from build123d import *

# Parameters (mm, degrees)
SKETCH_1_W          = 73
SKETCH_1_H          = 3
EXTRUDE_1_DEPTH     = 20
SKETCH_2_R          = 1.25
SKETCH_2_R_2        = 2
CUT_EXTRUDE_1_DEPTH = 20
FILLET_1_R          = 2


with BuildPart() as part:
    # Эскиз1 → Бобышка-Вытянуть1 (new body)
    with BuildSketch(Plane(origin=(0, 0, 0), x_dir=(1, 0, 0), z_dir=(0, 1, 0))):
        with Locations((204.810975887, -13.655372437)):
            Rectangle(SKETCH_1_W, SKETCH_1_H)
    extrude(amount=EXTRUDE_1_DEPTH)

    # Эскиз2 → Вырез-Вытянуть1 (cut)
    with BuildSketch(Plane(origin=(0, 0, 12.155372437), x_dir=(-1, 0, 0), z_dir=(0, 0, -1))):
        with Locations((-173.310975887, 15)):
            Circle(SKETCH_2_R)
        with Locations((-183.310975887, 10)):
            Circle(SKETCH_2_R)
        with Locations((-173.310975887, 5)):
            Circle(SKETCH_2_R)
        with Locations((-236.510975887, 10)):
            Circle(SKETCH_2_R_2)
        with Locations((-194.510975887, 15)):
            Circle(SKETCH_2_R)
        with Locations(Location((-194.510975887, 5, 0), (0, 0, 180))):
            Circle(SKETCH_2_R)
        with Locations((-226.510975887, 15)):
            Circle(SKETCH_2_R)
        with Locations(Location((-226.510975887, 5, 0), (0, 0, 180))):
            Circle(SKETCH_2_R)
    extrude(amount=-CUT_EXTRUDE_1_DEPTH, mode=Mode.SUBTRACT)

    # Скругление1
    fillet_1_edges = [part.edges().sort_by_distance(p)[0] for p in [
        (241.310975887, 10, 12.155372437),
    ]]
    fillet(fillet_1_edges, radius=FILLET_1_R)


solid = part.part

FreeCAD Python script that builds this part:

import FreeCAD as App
import Part
import Sketcher
Q = App.Units.Quantity


def edges_at(feature, points):
    """Names of the edges that pass closest to the given points."""
    edges = feature.Shape.Edges
    near = lambda p: min(range(len(edges)), key=lambda i: edges[i].distToShape(Part.Vertex(*p))[0])
    return sorted({f"Edge{near(p) + 1}" for p in points})


def add_polygon(sketch, points):
    """Adds a closed chain of lines whose ends are joined by coincident constraints."""
    first, n = sketch.GeometryCount, len(points)
    for a, b in zip(points, points[1:] + points[:1]):
        sketch.addGeometry(Part.LineSegment(App.Vector(*a, 0), App.Vector(*b, 0)), False)
    for i in range(n):
        sketch.addConstraint(Sketcher.Constraint("Coincident", first + i, 2, first + (i + 1) % n, 1))

doc = App.newDocument("Part")
body = doc.addObject("PartDesign::Body", "Body")

sketch1 = doc.addObject("Sketcher::SketchObject", "Sketch")
body.addObject(sketch1)
sketch1.AttachmentSupport = (doc.XZ_Plane, [""])
sketch1.MapMode = "FlatFace"
add_polygon(sketch1, [(168.3, 12.2), (168.3, 15.2), (241.3, 15.2), (241.3, 12.2)])
sketch1.addConstraint([
    Sketcher.Constraint("Vertical", 0),
    Sketcher.Constraint("Horizontal", 1),
    Sketcher.Constraint("Vertical", 2),
    Sketcher.Constraint("Horizontal", 3),
    Sketcher.Constraint("DistanceX", 1, 1, 1, 2, Q("73 mm")),
    Sketcher.Constraint("DistanceY", 0, 1, 0, 2, Q("3 mm")),
    Sketcher.Constraint("DistanceX", -1, 1, 0, 2, Q("168.310976 mm")),
    Sketcher.Constraint("DistanceY", -1, 1, 0, 2, Q("15.155372 mm")),
])
pad1 = doc.addObject("PartDesign::Pad", "Pad")
body.addObject(pad1)
pad1.Profile = sketch1
pad1.Length = 20
pad1.Reversed = True

sketch2 = doc.addObject("Sketcher::SketchObject", "Sketch001")
body.addObject(sketch2)
sketch2.AttachmentSupport = (doc.XY_Plane, [""])
sketch2.MapMode = "FlatFace"
sketch2.AttachmentOffset = App.Placement(App.Vector(0, 0, 12.155372), App.Rotation())
sketch2.addGeometry([
    Part.Circle(App.Vector(173.3, 15, 0), App.Vector(0, 0, 1), 1.2),
    Part.Circle(App.Vector(183.3, 10, 0), App.Vector(0, 0, 1), 1.2),
    Part.Circle(App.Vector(173.3, 5, 0), App.Vector(0, 0, 1), 1.2),
    Part.Circle(App.Vector(236.5, 10, 0), App.Vector(0, 0, 1), 2),
    Part.Circle(App.Vector(194.5, 15, 0), App.Vector(0, 0, 1), 1.2),
    Part.Circle(App.Vector(194.5, 5, 0), App.Vector(0, 0, 1), 1.2),
    Part.Circle(App.Vector(226.5, 15, 0), App.Vector(0, 0, 1), 1.2),
    Part.Circle(App.Vector(226.5, 5, 0), App.Vector(0, 0, 1), 1.2),
], False)
sketch2.addConstraint([
    Sketcher.Constraint("Equal", 0, 1),
    Sketcher.Constraint("Equal", 1, 2),
    Sketcher.Constraint("Equal", 2, 4),
    Sketcher.Constraint("Equal", 4, 5),
    Sketcher.Constraint("Equal", 5, 6),
    Sketcher.Constraint("Equal", 6, 7),
    Sketcher.Constraint("Horizontal", 1, 3, 3, 3),
    Sketcher.Constraint("Horizontal", 0, 3, 4, 3),
    Sketcher.Constraint("Horizontal", 2, 3, 5, 3),
    Sketcher.Constraint("Horizontal", 4, 3, 6, 3),
    Sketcher.Constraint("Horizontal", 5, 3, 7, 3),
    Sketcher.Constraint("Vertical", 0, 3, 2, 3),
    Sketcher.Constraint("Vertical", 4, 3, 5, 3),
    Sketcher.Constraint("Vertical", 6, 3, 7, 3),
    Sketcher.Constraint("Diameter", 3, Q("4 mm")),
    Sketcher.Constraint("Diameter", 0, Q("2.5 mm")),
    Sketcher.Constraint("DistanceY", -1, 1, 0, 3, Q("15 mm")),
    Sketcher.Constraint("DistanceY", -1, 1, 1, 3, Q("10 mm")),
    Sketcher.Constraint("DistanceY", -1, 1, 2, 3, Q("5 mm")),
    Sketcher.Constraint("DistanceX", 0, 3, 1, 3, Q("10 mm")),
    Sketcher.Constraint("DistanceX", 4, 3, 3, 3, Q("42 mm")),
    Sketcher.Constraint("DistanceX", 6, 3, 3, 3, Q("10 mm")),
    Sketcher.Constraint("DistanceX", 1, 3, 3, 3, Q("53.2 mm")),
    Sketcher.Constraint("DistanceX", -1, 1, 0, 3, Q("173.310976 mm")),
])
pocket1 = doc.addObject("PartDesign::Pocket", "Pocket")
body.addObject(pocket1)
pocket1.Profile = sketch2
pocket1.Length = 20
pocket1.Reversed = True
doc.recompute()

fillet = doc.addObject("PartDesign::Fillet", "Fillet")
body.addObject(fillet)
fillet.Base = (pocket1, edges_at(pocket1, [(241.311, 10, 12.155)]))
fillet.Radius = 2

doc.recompute()
